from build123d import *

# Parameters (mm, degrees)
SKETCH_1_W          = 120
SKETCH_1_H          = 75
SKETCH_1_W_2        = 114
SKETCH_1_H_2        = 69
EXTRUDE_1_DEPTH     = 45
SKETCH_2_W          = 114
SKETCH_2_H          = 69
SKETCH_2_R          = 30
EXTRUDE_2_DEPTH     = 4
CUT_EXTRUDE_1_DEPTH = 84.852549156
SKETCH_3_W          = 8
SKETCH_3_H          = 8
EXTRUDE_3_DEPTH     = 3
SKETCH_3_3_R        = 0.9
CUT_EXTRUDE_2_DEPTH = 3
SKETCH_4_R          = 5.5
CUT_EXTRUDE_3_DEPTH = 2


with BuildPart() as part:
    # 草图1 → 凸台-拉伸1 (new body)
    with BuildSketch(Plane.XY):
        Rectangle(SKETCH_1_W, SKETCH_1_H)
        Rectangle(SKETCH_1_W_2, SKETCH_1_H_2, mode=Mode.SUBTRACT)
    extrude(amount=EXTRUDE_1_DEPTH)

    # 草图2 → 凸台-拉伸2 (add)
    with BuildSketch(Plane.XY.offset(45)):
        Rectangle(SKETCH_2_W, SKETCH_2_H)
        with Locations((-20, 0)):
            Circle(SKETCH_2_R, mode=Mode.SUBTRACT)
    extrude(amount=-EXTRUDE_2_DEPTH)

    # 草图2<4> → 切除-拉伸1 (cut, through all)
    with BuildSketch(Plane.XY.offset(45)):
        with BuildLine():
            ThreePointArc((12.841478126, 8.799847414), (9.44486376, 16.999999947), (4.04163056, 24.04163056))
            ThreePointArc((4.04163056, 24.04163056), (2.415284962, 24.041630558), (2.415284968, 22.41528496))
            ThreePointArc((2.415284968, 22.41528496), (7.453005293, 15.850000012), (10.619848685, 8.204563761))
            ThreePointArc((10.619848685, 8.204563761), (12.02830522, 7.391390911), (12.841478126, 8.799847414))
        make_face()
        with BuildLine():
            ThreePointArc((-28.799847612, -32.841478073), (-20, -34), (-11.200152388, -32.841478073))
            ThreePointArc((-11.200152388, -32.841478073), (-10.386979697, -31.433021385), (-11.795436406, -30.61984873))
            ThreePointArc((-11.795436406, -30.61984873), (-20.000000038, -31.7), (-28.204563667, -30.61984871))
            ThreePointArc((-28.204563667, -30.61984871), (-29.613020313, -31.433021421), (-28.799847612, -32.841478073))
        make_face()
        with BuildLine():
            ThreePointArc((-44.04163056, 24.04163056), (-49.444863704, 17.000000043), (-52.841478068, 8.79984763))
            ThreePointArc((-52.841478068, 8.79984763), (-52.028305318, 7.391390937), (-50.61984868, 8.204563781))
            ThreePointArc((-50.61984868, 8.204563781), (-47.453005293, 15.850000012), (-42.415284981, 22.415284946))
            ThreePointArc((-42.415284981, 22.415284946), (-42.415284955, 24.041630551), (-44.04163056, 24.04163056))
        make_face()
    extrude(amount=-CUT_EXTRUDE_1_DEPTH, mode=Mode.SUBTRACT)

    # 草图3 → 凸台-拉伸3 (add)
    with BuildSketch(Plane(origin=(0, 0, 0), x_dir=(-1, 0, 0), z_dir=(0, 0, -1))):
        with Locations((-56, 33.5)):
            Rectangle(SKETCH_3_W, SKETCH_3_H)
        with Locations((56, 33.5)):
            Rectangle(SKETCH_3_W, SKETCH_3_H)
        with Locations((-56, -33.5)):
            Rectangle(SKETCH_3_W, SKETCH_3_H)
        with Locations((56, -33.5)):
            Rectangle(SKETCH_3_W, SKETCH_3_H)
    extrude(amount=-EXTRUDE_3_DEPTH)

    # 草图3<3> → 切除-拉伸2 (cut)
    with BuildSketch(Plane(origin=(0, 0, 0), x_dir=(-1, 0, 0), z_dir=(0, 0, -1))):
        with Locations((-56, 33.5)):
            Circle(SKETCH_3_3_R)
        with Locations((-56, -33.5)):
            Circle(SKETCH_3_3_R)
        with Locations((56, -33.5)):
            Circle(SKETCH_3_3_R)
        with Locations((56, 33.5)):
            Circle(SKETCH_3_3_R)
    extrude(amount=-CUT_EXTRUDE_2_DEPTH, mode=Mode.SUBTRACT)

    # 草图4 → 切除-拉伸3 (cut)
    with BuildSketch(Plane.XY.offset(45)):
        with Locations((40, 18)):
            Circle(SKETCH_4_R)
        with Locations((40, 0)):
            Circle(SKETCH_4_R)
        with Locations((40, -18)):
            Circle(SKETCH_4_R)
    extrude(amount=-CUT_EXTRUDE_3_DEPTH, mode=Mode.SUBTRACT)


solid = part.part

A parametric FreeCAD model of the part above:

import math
import FreeCAD as App
import Part
import Sketcher


def add_polygon(sketch, points):
    """Adds a closed chain of lines whose ends are joined by coincident constraints."""
    first, n = sketch.GeometryCount, len(points)
    for a, b in zip(points, points[1:] + points[:1]):
        sketch.addGeometry(Part.LineSegment(App.Vector(*a, 0), App.Vector(*b, 0)), False)
    for i in range(n):
        sketch.addConstraint(Sketcher.Constraint("Coincident", first + i, 2, first + (i + 1) % n, 1))

doc = App.newDocument("Part")
body = doc.addObject("PartDesign::Body", "Body")

# Sketch on XY plane
sketch1 = doc.addObject("Sketcher::SketchObject", "Sketch")
body.addObject(sketch1)
sketch1.AttachmentSupport = (doc.XY_Plane, [""])
sketch1.MapMode = "FlatFace"
add_polygon(sketch1, [(-60, 37.5), (-60, -37.5), (60, -37.5), (60, 37.5)])  # lines 0-3
add_polygon(sketch1, [(57, -34.5), (-57, -34.5), (-57, 34.5), (57, 34.5)])  # lines 4-7
sketch1.addConstraint(Sketcher.Constraint("Vertical", 0))
sketch1.addConstraint(Sketcher.Constraint("Horizontal", 1))
sketch1.addConstraint(Sketcher.Constraint("Vertical", 2))
sketch1.addConstraint(Sketcher.Constraint("Horizontal", 3))
sketch1.addConstraint(Sketcher.Constraint("Horizontal", 4))
sketch1.addConstraint(Sketcher.Constraint("Vertical", 5))
sketch1.addConstraint(Sketcher.Constraint("Horizontal", 6))
sketch1.addConstraint(Sketcher.Constraint("Vertical", 7))
sketch1.addConstraint(Sketcher.Constraint("Symmetric", 0, 2, 2, 2, -1, 1))
sketch1.addConstraint(Sketcher.Constraint("Symmetric", 4, 2, 6, 2, -1, 1))
sketch1.addConstraint(Sketcher.Constraint("DistanceX", 1, 1, 1, 2, 120.0))
sketch1.addConstraint(Sketcher.Constraint("DistanceX", 4, 2, 4, 1, 114.0))
sketch1.addConstraint(Sketcher.Constraint("DistanceY", 0, 2, 0, 1, 75.0))
sketch1.addConstraint(Sketcher.Constraint("DistanceY", 5, 1, 5, 2, 69.0))
pad1 = doc.addObject("PartDesign::Pad", "Pad")
body.addObject(pad1)
pad1.Profile = sketch1
pad1.Length = 45

# Sketch on XY plane
sketch2 = doc.addObject("Sketcher::SketchObject", "Sketch001")
body.addObject(sketch2)
sketch2.AttachmentSupport = (doc.XY_Plane, [""])
sketch2.MapMode = "FlatFace"
sketch2.AttachmentOffset = App.Placement(App.Vector(0, 0, 45), App.Rotation())
add_polygon(sketch2, [(-57, 34.5), (-57, -34.5), (57, -34.5), (57, 34.5)])  # lines 0-3
sketch2.addGeometry(Part.Circle(App.Vector(-20, 0, 0), App.Vector(0, 0, 1), 30), False)  # 4
sketch2.addConstraint(Sketcher.Constraint("Vertical", 0))
sketch2.addConstraint(Sketcher.Constraint("Horizontal", 1))
sketch2.addConstraint(Sketcher.Constraint("Vertical", 2))
sketch2.addConstraint(Sketcher.Constraint("Horizontal", 3))
sketch2.addConstraint(Sketcher.Constraint("Symmetric", 0, 2, 2, 2, -1, 1))
sketch2.addConstraint(Sketcher.Constraint("PointOnObject", 4, 3, -1))
sketch2.addConstraint(Sketcher.Constraint("Diameter", 4, 60.0))
sketch2.addConstraint(Sketcher.Constraint("DistanceX", 1, 1, 1, 2, 114.0))
sketch2.addConstraint(Sketcher.Constraint("DistanceY", 0, 2, 0, 1, 69.0))
sketch2.addConstraint(Sketcher.Constraint("DistanceX", 4, 3, -1, 1, 20.0))
pad2 = doc.addObject("PartDesign::Pad", "Pad001")
body.addObject(pad2)
pad2.Profile = sketch2
pad2.Length = 4
pad2.Reversed = True

# Sketch on XY plane
sketch3 = doc.addObject("Sketcher::SketchObject", "Sketch002")
body.addObject(sketch3)
sketch3.AttachmentSupport = (doc.XY_Plane, [""])
sketch3.MapMode = "FlatFace"
sketch3.AttachmentOffset = App.Placement(App.Vector(0, 0, 45), App.Rotation())
sketch3.addGeometry(Part.ArcOfCircle(Part.Circle(App.Vector(-20, 0, 0), App.Vector(0, 0, 1), 34), math.radians(15), math.radians(45)), False)
sketch3.addGeometry(Part.ArcOfCircle(Part.Circle(App.Vector(3.228458, 23.228458, 0), App.Vector(0, 0, 1), 1.15), math.radians(45), math.radians(225)), False)
sketch3.addGeometry(Part.ArcOfCircle(Part.Circle(App.Vector(-20, 0, 0), App.Vector(0, 0, 1), 31.7), math.radians(15), math.radians(45)), False)
sketch3.addGeometry(Part.ArcOfCircle(Part.Circle(App.Vector(11.730663, 8.502206, 0), App.Vector(0, 0, 1), 1.15), math.radians(-165.000002), math.radians(14.999994)), False)
sketch3.addGeometry(Part.ArcOfCircle(Part.Circle(App.Vector(-20, 0, 0), App.Vector(0, 0, 1), 34), math.radians(-105), math.radians(-75)), False)
sketch3.addGeometry(Part.ArcOfCircle(Part.Circle(App.Vector(-11.497794, -31.730663, 0), App.Vector(0, 0, 1), 1.15), math.radians(-74.999996), math.radians(105.000007)), False)
sketch3.addGeometry(Part.ArcOfCircle(Part.Circle(App.Vector(-20, 0, 0), App.Vector(0, 0, 1), 31.7), math.radians(-105), math.radians(-75)), False)
sketch3.addGeometry(Part.ArcOfCircle(Part.Circle(App.Vector(-28.502206, -31.730663, 0), App.Vector(0, 0, 1), 1.15), math.radians(74.999997), math.radians(254.999996)), False)
sketch3.addGeometry(Part.ArcOfCircle(Part.Circle(App.Vector(-20, 0, 0), App.Vector(0, 0, 1), 34), math.radians(135), math.radians(165)), False)
sketch3.addGeometry(Part.ArcOfCircle(Part.Circle(App.Vector(-51.730663, 8.502206, 0), App.Vector(0, 0, 1), 1.15), math.radians(164.999995), math.radians(345.000003)), False)
sketch3.addGeometry(Part.ArcOfCircle(Part.Circle(App.Vector(-20, 0, 0), App.Vector(0, 0, 1), 31.7), math.radians(135), math.radians(165)), False)
sketch3.addGeometry(Part.ArcOfCircle(Part.Circle(App.Vector(-43.228458, 23.228458, 0), App.Vector(0, 0, 1), 1.15), math.radians(-45.000001), math.radians(135)), False)
sketch3.addConstraint(Sketcher.Constraint("Tangent", 0, 2, 1, 1))
sketch3.addConstraint(Sketcher.Constraint("Tangent", 1, 2, 2, 2))
sketch3.addConstraint(Sketcher.Constraint("Tangent", 2, 1, 3, 1))
sketch3.addConstraint(Sketcher.Constraint("Tangent", 3, 2, 0, 1))
sketch3.addConstraint(Sketcher.Constraint("Tangent", 4, 2, 5, 1))
sketch3.addConstraint(Sketcher.Constraint("Tangent", 5, 2, 6, 2))
sketch3.addConstraint(Sketcher.Constraint("Tangent", 6, 1, 7, 1))
sketch3.addConstraint(Sketcher.Constraint("Tangent", 7, 2, 4, 1))
sketch3.addConstraint(Sketcher.Constraint("Tangent", 8, 2, 9, 1))
sketch3.addConstraint(Sketcher.Constraint("Tangent", 9, 2, 10, 2))
sketch3.addConstraint(Sketcher.Constraint("Tangent", 10, 1, 11, 1))
sketch3.addConstraint(Sketcher.Constraint("Tangent", 11, 2, 8, 1))
sketch3.addConstraint(Sketcher.Constraint("Coincident", 2, 3, 0, 3))
sketch3.addConstraint(Sketcher.Constraint("Coincident", 4, 3, 0, 3))
sketch3.addConstraint(Sketcher.Constraint("Coincident", 6, 3, 0, 3))
sketch3.addConstraint(Sketcher.Constraint("Coincident", 8, 3, 0, 3))
sketch3.addConstraint(Sketcher.Constraint("Coincident", 10, 3, 0, 3))
sketch3.addConstraint(Sketcher.Constraint("Equal", 0, 4))
sketch3.addConstraint(Sketcher.Constraint("Equal", 3, 5))
sketch3.addConstraint(Sketcher.Constraint("Equal", 4, 8))
sketch3.addConstraint(Sketcher.Constraint("Equal", 7, 9))
sketch3.addConstraint(Sketcher.Constraint("PointOnObject", 0, 3, -1))
sketch3.addConstraint(Sketcher.Constraint("Horizontal", 5, 3, 7, 3))
sketch3.addConstraint(Sketcher.Constraint("Horizontal", 3, 3, 9, 3))
sketch3.addConstraint(Sketcher.Constraint("Horizontal", 1, 3, 11, 3))
sketch3.addConstraint(Sketcher.Constraint("Radius", 0, 34.0))
sketch3.addConstraint(Sketcher.Constraint("Radius", 2, 31.7))
sketch3.addConstraint(Sketcher.Constraint("DistanceX", 0, 3, -1, 1, 20.0))
sketch3.addConstraint(Sketcher.Constraint("DistanceX", -1, 1, 0, 2, 4.041631))
sketch3.addConstraint(Sketcher.Constraint("DistanceX", -1, 1, 2, 1, 10.619849))
sketch3.addConstraint(Sketcher.Constraint("DistanceY", 4, 2, -1, 1, 32.841478))
pocket1 = doc.addObject("PartDesign::Pocket", "Pocket")
body.addObject(pocket1)
pocket1.Profile = sketch3
pocket1.Type = "ThroughAll"

# Sketch on XY plane
sketch4 = doc.addObject("Sketcher::SketchObject", "Sketch003")
body.addObject(sketch4)
sketch4.AttachmentSupport = (doc.XY_Plane, [""])
sketch4.MapMode = "FlatFace"
add_polygon(sketch4, [(60, 37.5), (60, 29.5), (52, 29.5), (52, 37.5)])  # lines 0-3
add_polygon(sketch4, [(-52, 37.5), (-52, 29.5), (-60, 29.5), (-60, 37.5)])  # lines 4-7
add_polygon(sketch4, [(60, -29.5), (60, -37.5), (52, -37.5), (52, -29.5)])  # lines 8-11
add_polygon(sketch4, [(-52, -29.5), (-52, -37.5), (-60, -37.5), (-60, -29.5)])  # lines 12-15
sketch4.addConstraint(Sketcher.Constraint("Vertical", 0))
sketch4.addConstraint(Sketcher.Constraint("Horizontal", 1))
sketch4.addConstraint(Sketcher.Constraint("Vertical", 2))
sketch4.addConstraint(Sketcher.Constraint("Horizontal", 3))
sketch4.addConstraint(Sketcher.Constraint("Vertical", 4))
sketch4.addConstraint(Sketcher.Constraint("Horizontal", 5))
sketch4.addConstraint(Sketcher.Constraint("Vertical", 6))
sketch4.addConstraint(Sketcher.Constraint("Horizontal", 7))
sketch4.addConstraint(Sketcher.Constraint("Vertical", 8))
sketch4.addConstraint(Sketcher.Constraint("Horizontal", 9))
sketch4.addConstraint(Sketcher.Constraint("Vertical", 10))
sketch4.addConstraint(Sketcher.Constraint("Horizontal", 11))
sketch4.addConstraint(Sketcher.Constraint("Vertical", 12))
sketch4.addConstraint(Sketcher.Constraint("Horizontal", 13))
sketch4.addConstraint(Sketcher.Constraint("Vertical", 14))
sketch4.addConstraint(Sketcher.Constraint("Horizontal", 15))
sketch4.addConstraint(Sketcher.Constraint("Symmetric", 6, 2, 8, 2, -1, 1))
sketch4.addConstraint(Sketcher.Constraint("Symmetric", 4, 2, 10, 2, -1, 1))
sketch4.addConstraint(Sketcher.Constraint("Symmetric", 2, 2, 12, 2, -1, 1))
sketch4.addConstraint(Sketcher.Constraint("Symmetric", 0, 2, 14, 2, -1, 1))
sketch4.addConstraint(Sketcher.Constraint("Symmetric", 1, 2, 4, 2, -2))
sketch4.addConstraint(Sketcher.Constraint("Symmetric", 3, 2, 6, 2, -2))
sketch4.addConstraint(Sketcher.Constraint("Equal", 15, 0))
sketch4.addConstraint(Sketcher.Constraint("DistanceX", 1, 2, 1, 1, 8.0))
sketch4.addConstraint(Sketcher.Constraint("DistanceX", -1, 1, 0, 2, 60.0))
sketch4.addConstraint(Sketcher.Constraint("DistanceY", 8, 2, 0, 2, 67.0))
pad3 = doc.addObject("PartDesign::Pad", "Pad002")
body.addObject(pad3)
pad3.Profile = sketch4
pad3.Length = 3

# Sketch on XY plane
sketch5 = doc.addObject("Sketcher::SketchObject", "Sketch004")
body.addObject(sketch5)
sketch5.AttachmentSupport = (doc.XY_Plane, [""])
sketch5.MapMode = "FlatFace"
sketch5.addGeometry(Part.Circle(App.Vector(56, 33.5, 0), App.Vector(0, 0, 1), 0.9), False)
sketch5.addGeometry(Part.Circle(App.Vector(56, -33.5, 0), App.Vector(0, 0, 1), 0.9), False)
sketch5.addGeometry(Part.Circle(App.Vector(-56, -33.5, 0), App.Vector(0, 0, 1), 0.9), False)
sketch5.addGeometry(Part.Circle(App.Vector(-56, 33.5, 0), App.Vector(0, 0, 1), 0.9), False)
sketch5.addConstraint(Sketcher.Constraint("Equal", 0, 1))
sketch5.addConstraint(Sketcher.Constraint("Equal", 1, 2))
sketch5.addConstraint(Sketcher.Constraint("Equal", 2, 3))
sketch5.addConstraint(Sketcher.Constraint("Symmetric", 0, 3, 2, 3, -1, 1))
sketch5.addConstraint(Sketcher.Constraint("Symmetric", 1, 3, 3, 3, -1, 1))
sketch5.addConstraint(Sketcher.Constraint("Symmetric", 1, 3, 2, 3, -2))
sketch5.addConstraint(Sketcher.Constraint("Diameter", 0, 1.8))
sketch5.addConstraint(Sketcher.Constraint("DistanceX", -1, 1, 0, 3, 56.0))
sketch5.addConstraint(Sketcher.Constraint("DistanceY", 1, 3, 0, 3, 67.0))
pocket2 = doc.addObject("PartDesign::Pocket", "Pocket001")
body.addObject(pocket2)
pocket2.Profile = sketch5
pocket2.Length = 3
pocket2.Reversed = True

# Sketch on XY plane
sketch6 = doc.addObject("Sketcher::SketchObject", "Sketch005")
body.addObject(sketch6)
sketch6.AttachmentSupport = (doc.XY_Plane, [""])
sketch6.MapMode = "FlatFace"
sketch6.AttachmentOffset = App.Placement(App.Vector(0, 0, 45), App.Rotation())
sketch6.addGeometry(Part.Circle(App.Vector(40, 18, 0), App.Vector(0, 0, 1), 5.5), False)
sketch6.addGeometry(Part.Circle(App.Vector(40, 0, 0), App.Vector(0, 0, 1), 5.5), False)
sketch6.addGeometry(Part.Circle(App.Vector(40, -18, 0), App.Vector(0, 0, 1), 5.5), False)
sketch6.addConstraint(Sketcher.Constraint("Equal", 0, 1))
sketch6.addConstraint(Sketcher.Constraint("Equal", 1, 2))
sketch6.addConstraint(Sketcher.Constraint("Symmetric", 0, 3, 2, 3, -1))
sketch6.addConstraint(Sketcher.Constraint("PointOnObject", 1, 3, -1))
sketch6.addConstraint(Sketcher.Constraint("Vertical", 0, 3, 1, 3))
sketch6.addConstraint(Sketcher.Constraint("Diameter", 0, 11.0))
sketch6.addConstraint(Sketcher.Constraint("DistanceX", -1, 1, 0, 3, 40.0))
sketch6.addConstraint(Sketcher.Constraint("DistanceY", -1, 1, 0, 3, 18.0))
pocket3 = doc.addObject("PartDesign::Pocket", "Pocket002")
body.addObject(pocket3)
pocket3.Profile = sketch6
pocket3.Length = 2

doc.recompute()
